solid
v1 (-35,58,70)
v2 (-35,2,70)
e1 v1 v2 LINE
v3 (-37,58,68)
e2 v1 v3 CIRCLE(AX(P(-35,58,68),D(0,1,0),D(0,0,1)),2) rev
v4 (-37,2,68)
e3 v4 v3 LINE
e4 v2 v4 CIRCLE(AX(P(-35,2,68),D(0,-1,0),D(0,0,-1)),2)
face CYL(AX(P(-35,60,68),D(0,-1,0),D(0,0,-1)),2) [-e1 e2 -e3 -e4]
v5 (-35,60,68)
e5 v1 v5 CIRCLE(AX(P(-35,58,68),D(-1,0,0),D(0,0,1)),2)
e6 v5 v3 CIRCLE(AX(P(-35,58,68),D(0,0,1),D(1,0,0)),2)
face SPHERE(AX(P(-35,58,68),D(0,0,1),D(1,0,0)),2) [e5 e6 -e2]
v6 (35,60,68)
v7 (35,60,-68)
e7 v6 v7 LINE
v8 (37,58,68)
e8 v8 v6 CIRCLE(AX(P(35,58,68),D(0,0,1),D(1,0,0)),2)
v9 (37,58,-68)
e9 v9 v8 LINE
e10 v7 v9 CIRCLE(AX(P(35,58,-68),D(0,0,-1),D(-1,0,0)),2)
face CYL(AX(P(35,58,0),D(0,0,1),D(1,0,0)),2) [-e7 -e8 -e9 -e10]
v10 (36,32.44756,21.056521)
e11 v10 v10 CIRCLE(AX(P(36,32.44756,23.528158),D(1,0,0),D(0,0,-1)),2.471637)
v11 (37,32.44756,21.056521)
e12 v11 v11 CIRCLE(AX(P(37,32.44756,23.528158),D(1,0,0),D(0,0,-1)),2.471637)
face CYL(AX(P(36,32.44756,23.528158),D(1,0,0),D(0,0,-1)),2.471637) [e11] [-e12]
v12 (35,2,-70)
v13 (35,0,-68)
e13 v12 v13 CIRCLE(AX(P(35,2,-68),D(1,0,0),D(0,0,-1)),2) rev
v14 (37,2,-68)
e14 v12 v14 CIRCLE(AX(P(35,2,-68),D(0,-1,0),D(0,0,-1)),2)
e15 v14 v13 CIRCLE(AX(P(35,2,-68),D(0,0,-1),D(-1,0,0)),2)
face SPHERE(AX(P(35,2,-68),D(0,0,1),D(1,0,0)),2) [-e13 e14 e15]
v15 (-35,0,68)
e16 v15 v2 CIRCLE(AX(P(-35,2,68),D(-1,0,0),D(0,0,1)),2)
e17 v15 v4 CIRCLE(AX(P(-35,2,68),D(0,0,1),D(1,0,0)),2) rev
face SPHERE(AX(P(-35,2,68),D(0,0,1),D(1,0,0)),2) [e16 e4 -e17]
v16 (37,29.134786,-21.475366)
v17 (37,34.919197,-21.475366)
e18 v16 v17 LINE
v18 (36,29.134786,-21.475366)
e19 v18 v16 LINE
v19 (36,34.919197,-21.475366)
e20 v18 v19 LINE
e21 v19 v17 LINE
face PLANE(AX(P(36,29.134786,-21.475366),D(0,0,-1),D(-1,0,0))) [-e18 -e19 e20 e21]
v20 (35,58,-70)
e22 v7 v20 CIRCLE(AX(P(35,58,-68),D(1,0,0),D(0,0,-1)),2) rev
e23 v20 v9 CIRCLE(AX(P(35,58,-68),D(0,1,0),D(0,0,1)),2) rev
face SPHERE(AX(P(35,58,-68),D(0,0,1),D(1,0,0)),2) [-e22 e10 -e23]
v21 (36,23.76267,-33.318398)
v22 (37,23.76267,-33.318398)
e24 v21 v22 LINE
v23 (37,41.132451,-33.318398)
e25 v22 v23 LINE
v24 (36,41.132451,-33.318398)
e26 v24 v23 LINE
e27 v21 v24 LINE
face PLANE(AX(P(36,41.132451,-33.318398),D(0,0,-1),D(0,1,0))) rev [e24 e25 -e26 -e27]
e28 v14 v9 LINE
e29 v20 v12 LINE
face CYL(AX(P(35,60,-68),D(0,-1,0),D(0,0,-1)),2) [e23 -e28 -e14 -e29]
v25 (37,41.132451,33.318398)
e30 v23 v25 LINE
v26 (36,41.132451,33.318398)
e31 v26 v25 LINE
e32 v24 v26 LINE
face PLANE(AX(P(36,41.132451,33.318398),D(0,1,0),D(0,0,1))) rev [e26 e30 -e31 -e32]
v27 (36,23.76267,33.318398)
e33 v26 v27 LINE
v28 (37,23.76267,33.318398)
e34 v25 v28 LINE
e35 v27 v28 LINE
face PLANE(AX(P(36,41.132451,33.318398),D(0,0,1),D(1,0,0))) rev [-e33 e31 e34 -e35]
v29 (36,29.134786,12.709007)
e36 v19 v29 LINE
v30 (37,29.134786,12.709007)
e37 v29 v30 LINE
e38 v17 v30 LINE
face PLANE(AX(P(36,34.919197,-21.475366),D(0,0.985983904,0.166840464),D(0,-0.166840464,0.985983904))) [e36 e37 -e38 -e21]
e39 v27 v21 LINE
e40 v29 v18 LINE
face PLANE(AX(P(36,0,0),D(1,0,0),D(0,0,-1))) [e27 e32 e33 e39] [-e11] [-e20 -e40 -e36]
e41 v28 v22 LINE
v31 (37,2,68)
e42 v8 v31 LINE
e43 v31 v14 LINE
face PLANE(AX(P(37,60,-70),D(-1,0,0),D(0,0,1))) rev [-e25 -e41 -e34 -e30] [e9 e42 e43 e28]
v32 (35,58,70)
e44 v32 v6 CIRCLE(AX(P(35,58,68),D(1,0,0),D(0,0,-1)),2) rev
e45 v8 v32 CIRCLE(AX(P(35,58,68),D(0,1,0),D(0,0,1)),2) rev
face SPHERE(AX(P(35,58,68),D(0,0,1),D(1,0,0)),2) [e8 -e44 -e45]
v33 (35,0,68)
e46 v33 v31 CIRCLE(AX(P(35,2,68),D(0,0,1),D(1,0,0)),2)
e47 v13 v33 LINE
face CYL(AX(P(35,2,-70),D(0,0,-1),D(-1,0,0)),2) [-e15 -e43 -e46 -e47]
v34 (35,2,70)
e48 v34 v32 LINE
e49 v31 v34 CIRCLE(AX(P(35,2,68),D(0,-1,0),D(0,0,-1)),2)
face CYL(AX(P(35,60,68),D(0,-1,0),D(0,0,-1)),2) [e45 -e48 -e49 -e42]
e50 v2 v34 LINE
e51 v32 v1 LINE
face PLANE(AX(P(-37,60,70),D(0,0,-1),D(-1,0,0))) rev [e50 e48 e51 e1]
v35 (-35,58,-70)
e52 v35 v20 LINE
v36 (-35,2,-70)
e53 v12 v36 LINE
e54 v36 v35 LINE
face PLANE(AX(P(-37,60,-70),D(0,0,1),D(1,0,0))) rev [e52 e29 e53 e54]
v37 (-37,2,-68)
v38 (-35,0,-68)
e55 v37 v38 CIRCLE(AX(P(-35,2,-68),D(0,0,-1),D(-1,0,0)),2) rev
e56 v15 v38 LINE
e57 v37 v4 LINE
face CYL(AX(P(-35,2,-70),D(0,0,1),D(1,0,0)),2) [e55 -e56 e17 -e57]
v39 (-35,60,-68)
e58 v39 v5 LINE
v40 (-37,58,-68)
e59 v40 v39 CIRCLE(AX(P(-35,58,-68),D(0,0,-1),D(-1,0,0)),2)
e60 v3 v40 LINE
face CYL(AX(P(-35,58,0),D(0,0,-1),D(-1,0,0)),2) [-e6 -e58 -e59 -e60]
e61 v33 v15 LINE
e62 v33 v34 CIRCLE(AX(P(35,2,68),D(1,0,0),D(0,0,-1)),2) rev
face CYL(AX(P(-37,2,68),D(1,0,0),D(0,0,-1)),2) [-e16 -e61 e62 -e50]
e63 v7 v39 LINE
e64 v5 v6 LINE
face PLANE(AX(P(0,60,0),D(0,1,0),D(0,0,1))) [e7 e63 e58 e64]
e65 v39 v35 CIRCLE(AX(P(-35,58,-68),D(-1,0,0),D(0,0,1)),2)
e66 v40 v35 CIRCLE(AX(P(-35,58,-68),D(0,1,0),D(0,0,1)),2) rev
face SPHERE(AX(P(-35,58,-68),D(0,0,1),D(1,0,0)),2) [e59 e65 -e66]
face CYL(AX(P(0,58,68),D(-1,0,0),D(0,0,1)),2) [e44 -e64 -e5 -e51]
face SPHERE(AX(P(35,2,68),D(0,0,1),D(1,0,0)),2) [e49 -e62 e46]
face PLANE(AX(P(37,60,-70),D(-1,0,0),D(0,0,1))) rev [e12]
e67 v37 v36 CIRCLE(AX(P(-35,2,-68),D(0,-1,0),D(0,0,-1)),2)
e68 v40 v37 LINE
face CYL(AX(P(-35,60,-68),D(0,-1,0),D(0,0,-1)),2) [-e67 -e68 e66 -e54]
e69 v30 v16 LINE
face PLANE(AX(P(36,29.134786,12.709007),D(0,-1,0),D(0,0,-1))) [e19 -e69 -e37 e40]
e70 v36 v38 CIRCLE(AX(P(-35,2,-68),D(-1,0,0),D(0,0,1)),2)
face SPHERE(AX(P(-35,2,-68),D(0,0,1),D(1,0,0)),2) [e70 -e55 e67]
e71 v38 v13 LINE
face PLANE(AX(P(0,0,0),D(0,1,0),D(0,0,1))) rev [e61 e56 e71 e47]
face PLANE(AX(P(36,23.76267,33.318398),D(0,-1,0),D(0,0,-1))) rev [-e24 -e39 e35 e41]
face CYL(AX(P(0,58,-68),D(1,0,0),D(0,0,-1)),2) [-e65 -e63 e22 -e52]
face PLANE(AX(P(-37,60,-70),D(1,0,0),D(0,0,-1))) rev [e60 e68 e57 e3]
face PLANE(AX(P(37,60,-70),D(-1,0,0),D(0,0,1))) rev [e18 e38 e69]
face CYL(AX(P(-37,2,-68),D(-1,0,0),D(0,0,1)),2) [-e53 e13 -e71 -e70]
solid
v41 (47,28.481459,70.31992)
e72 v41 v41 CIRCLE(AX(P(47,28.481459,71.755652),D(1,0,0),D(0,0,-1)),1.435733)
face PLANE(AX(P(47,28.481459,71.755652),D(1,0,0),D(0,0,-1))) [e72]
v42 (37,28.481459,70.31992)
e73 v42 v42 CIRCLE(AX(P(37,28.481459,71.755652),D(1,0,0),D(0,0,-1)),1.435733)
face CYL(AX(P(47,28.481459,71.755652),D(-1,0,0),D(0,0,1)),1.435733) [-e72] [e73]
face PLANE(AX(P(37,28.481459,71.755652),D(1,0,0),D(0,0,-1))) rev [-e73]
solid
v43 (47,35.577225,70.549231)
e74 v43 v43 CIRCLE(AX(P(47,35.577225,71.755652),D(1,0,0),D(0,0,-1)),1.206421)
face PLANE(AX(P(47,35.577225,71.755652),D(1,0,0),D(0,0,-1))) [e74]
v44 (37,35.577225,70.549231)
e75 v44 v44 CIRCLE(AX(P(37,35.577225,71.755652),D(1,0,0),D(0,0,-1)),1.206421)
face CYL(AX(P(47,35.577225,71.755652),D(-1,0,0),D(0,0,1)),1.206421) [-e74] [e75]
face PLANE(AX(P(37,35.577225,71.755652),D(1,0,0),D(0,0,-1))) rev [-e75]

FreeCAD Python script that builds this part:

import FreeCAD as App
import Part
import Sketcher
from FreeCAD import Vector
Q = App.Units.Quantity


def add_polygon(sketch, points):
    """Adds a closed chain of lines whose ends are joined by coincident constraints."""
    first, n = sketch.GeometryCount, len(points)
    for a, b in zip(points, points[1:] + points[:1]):
        sketch.addGeometry(Part.LineSegment(App.Vector(*a, 0), App.Vector(*b, 0)), False)
    for i in range(n):
        sketch.addConstraint(Sketcher.Constraint("Coincident", first + i, 2, first + (i + 1) % n, 1))

doc = App.newDocument("Part")
body = doc.addObject("PartDesign::Body", "Body")

sketch1 = doc.addObject("Sketcher::SketchObject", "Sketch")
body.addObject(sketch1)
sketch1.AttachmentSupport = (doc.XZ_Plane, [""])
sketch1.MapMode = "FlatFace"
add_polygon(sketch1, [(-37, -70), (-37, 70), (37, 70), (37, -70)])
sketch1.addConstraint([
    Sketcher.Constraint("Vertical", 0),
    Sketcher.Constraint("Horizontal", 1),
    Sketcher.Constraint("Vertical", 2),
    Sketcher.Constraint("Horizontal", 3),
    Sketcher.Constraint("Symmetric", 0, 2, 2, 2, -1, 1),
    Sketcher.Constraint("DistanceX", 1, 1, 1, 2, Q("74 mm")),
    Sketcher.Constraint("DistanceY", 0, 1, 0, 2, Q("140 mm")),
])
pad1 = doc.addObject("PartDesign::Pad", "Pad")
body.addObject(pad1)
pad1.Profile = sketch1
pad1.Length = 60
pad1.Reversed = True
doc.recompute()

fillet = doc.addObject("PartDesign::Fillet", "Fillet")
body.addObject(fillet)
fillet.Base = (pad1, ["Edge1"])
fillet.UseAllEdges = True
fillet.Radius = 2

sketch2 = doc.addObject("Sketcher::SketchObject", "Sketch001")
body.addObject(sketch2)
sketch2.AttachmentSupport = (doc.YZ_Plane, [""])
sketch2.MapMode = "FlatFace"
sketch2.AttachmentOffset = App.Placement(Vector(0, 0, 37), App.Rotation())
add_polygon(sketch2, [(41.1, 33.3), (23.8, 33.3), (23.8, -33.3), (41.1, -33.3)])
add_polygon(sketch2, [(29.1, -21.5), (29.1, 12.7), (34.9, -21.5)])
sketch2.addGeometry(Part.Circle(Vector(32.4, 23.5, 0), Vector(0, 0, 1), 2.5), False)
sketch2.addConstraint([
    Sketcher.Constraint("Horizontal", 0),
    Sketcher.Constraint("Vertical", 1),
    Sketcher.Constraint("Horizontal", 2),
    Sketcher.Constraint("Vertical", 3),
    Sketcher.Constraint("Vertical", 4),
    Sketcher.Constraint("Horizontal", 6),
    Sketcher.Constraint("Diameter", 7, Q("4.943274 mm")),
    Sketcher.Constraint("DistanceX", 0, 2, 0, 1, Q("17.369781 mm")),
    Sketcher.Constraint("DistanceX", 6, 2, 6, 1, Q("5.784411 mm")),
    Sketcher.Constraint("DistanceY", 1, 2, 1, 1, Q("66.636796 mm")),
    Sketcher.Constraint("DistanceY", 4, 1, 4, 2, Q("34.184373 mm")),
    Sketcher.Constraint("DistanceX", -1, 1, 7, 3, Q("32.44756 mm")),
    Sketcher.Constraint("DistanceX", -1, 1, 0, 2, Q("23.76267 mm")),
    Sketcher.Constraint("DistanceY", 7, 3, 0, 2, Q("9.79024 mm")),
    Sketcher.Constraint("DistanceY", 4, 2, 7, 3, Q("10.81915 mm")),
    Sketcher.Constraint("DistanceY", -1, 1, 7, 3, Q("23.528158 mm")),
    Sketcher.Constraint("DistanceX", -1, 1, 4, 2, Q("29.134786 mm")),
])
pocket1 = doc.addObject("PartDesign::Pocket", "Pocket")
body.addObject(pocket1)
pocket1.Profile = sketch2
pocket1.Length = 1
body2 = doc.addObject("PartDesign::Body", "Body001")

sketch3 = doc.addObject("Sketcher::SketchObject", "Sketch002")
body2.addObject(sketch3)
sketch3.AttachmentSupport = (doc.getObject("YZ_Plane001"), [""])
sketch3.MapMode = "FlatFace"
sketch3.AttachmentOffset = App.Placement(Vector(0, 0, 37), App.Rotation())
sketch3.addGeometry(Part.Circle(Vector(35.6, 71.8, 0), Vector(0, 0, 1), 1.2), False)
sketch3.addConstraint([
    Sketcher.Constraint("Diameter", 0, Q("2.412842 mm")),
    Sketcher.Constraint("DistanceX", -1, 1, 0, 3, Q("35.577225 mm")),
    Sketcher.Constraint("DistanceY", -1, 1, 0, 3, Q("71.755652 mm")),
])
pad2 = doc.addObject("PartDesign::Pad", "Pad001")
body2.addObject(pad2)
pad2.Profile = sketch3
pad2.Length = 10
body3 = doc.addObject("PartDesign::Body", "Body002")

sketch4 = doc.addObject("Sketcher::SketchObject", "Sketch003")
body3.addObject(sketch4)
sketch4.AttachmentSupport = (doc.getObject("YZ_Plane002"), [""])
sketch4.MapMode = "FlatFace"
sketch4.AttachmentOffset = App.Placement(Vector(0, 0, 37), App.Rotation())
sketch4.addGeometry(Part.Circle(Vector(28.5, 71.8, 0), Vector(0, 0, 1), 1.4), False)
sketch4.addConstraint([
    Sketcher.Constraint("Diameter", 0, Q("2.871465 mm")),
    Sketcher.Constraint("DistanceX", -1, 1, 0, 3, Q("28.481459 mm")),
    Sketcher.Constraint("DistanceY", -1, 1, 0, 3, Q("71.755652 mm")),
])
pad3 = doc.addObject("PartDesign::Pad", "Pad002")
body3.addObject(pad3)
pad3.Profile = sketch4
pad3.Length = 10

doc.recompute()
